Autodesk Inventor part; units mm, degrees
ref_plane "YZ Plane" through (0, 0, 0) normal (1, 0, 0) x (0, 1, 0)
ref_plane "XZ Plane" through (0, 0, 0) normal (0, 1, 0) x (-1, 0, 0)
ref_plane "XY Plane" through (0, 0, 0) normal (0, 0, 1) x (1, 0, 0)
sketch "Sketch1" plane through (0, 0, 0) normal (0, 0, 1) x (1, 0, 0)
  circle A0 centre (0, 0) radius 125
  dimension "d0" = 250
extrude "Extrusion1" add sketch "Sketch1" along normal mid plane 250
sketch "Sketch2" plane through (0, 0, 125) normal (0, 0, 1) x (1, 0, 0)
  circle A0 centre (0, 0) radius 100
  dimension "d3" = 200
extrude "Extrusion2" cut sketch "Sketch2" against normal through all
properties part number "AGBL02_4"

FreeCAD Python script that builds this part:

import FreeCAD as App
import Part
import Sketcher
from FreeCAD import Vector

doc = App.newDocument("Part")
body = doc.addObject("PartDesign::Body", "Body")

sketch1 = doc.addObject("Sketcher::SketchObject", "Sketch")
body.addObject(sketch1)
sketch1.AttachmentSupport = (doc.XY_Plane, [""])
sketch1.MapMode = "FlatFace"
sketch1.addGeometry(Part.Circle(Vector(0, 0, 0), Vector(0, 0, 1), 125), False)
sketch1.addConstraint(Sketcher.Constraint("Coincident", 0, 3, -1, 1))
sketch1.addConstraint(Sketcher.Constraint("Diameter", 0, 250.0))
pad1 = doc.addObject("PartDesign::Pad", "Pad")
body.addObject(pad1)
pad1.Profile = sketch1
pad1.Length = 250
pad1.Midplane = True

sketch2 = doc.addObject("Sketcher::SketchObject", "Sketch001")
body.addObject(sketch2)
sketch2.AttachmentSupport = (doc.XY_Plane, [""])
sketch2.MapMode = "FlatFace"
sketch2.AttachmentOffset = App.Placement(Vector(0, 0, 125), App.Rotation())
sketch2.addGeometry(Part.Circle(Vector(0, 0, 0), Vector(0, 0, 1), 100), False)
sketch2.addConstraint(Sketcher.Constraint("Coincident", 0, 3, -1, 1))
sketch2.addConstraint(Sketcher.Constraint("Diameter", 0, 200.0))
pocket1 = doc.addObject("PartDesign::Pocket", "Pocket")
body.addObject(pocket1)
pocket1.Profile = sketch2
pocket1.Type = "ThroughAll"

doc.recompute()
